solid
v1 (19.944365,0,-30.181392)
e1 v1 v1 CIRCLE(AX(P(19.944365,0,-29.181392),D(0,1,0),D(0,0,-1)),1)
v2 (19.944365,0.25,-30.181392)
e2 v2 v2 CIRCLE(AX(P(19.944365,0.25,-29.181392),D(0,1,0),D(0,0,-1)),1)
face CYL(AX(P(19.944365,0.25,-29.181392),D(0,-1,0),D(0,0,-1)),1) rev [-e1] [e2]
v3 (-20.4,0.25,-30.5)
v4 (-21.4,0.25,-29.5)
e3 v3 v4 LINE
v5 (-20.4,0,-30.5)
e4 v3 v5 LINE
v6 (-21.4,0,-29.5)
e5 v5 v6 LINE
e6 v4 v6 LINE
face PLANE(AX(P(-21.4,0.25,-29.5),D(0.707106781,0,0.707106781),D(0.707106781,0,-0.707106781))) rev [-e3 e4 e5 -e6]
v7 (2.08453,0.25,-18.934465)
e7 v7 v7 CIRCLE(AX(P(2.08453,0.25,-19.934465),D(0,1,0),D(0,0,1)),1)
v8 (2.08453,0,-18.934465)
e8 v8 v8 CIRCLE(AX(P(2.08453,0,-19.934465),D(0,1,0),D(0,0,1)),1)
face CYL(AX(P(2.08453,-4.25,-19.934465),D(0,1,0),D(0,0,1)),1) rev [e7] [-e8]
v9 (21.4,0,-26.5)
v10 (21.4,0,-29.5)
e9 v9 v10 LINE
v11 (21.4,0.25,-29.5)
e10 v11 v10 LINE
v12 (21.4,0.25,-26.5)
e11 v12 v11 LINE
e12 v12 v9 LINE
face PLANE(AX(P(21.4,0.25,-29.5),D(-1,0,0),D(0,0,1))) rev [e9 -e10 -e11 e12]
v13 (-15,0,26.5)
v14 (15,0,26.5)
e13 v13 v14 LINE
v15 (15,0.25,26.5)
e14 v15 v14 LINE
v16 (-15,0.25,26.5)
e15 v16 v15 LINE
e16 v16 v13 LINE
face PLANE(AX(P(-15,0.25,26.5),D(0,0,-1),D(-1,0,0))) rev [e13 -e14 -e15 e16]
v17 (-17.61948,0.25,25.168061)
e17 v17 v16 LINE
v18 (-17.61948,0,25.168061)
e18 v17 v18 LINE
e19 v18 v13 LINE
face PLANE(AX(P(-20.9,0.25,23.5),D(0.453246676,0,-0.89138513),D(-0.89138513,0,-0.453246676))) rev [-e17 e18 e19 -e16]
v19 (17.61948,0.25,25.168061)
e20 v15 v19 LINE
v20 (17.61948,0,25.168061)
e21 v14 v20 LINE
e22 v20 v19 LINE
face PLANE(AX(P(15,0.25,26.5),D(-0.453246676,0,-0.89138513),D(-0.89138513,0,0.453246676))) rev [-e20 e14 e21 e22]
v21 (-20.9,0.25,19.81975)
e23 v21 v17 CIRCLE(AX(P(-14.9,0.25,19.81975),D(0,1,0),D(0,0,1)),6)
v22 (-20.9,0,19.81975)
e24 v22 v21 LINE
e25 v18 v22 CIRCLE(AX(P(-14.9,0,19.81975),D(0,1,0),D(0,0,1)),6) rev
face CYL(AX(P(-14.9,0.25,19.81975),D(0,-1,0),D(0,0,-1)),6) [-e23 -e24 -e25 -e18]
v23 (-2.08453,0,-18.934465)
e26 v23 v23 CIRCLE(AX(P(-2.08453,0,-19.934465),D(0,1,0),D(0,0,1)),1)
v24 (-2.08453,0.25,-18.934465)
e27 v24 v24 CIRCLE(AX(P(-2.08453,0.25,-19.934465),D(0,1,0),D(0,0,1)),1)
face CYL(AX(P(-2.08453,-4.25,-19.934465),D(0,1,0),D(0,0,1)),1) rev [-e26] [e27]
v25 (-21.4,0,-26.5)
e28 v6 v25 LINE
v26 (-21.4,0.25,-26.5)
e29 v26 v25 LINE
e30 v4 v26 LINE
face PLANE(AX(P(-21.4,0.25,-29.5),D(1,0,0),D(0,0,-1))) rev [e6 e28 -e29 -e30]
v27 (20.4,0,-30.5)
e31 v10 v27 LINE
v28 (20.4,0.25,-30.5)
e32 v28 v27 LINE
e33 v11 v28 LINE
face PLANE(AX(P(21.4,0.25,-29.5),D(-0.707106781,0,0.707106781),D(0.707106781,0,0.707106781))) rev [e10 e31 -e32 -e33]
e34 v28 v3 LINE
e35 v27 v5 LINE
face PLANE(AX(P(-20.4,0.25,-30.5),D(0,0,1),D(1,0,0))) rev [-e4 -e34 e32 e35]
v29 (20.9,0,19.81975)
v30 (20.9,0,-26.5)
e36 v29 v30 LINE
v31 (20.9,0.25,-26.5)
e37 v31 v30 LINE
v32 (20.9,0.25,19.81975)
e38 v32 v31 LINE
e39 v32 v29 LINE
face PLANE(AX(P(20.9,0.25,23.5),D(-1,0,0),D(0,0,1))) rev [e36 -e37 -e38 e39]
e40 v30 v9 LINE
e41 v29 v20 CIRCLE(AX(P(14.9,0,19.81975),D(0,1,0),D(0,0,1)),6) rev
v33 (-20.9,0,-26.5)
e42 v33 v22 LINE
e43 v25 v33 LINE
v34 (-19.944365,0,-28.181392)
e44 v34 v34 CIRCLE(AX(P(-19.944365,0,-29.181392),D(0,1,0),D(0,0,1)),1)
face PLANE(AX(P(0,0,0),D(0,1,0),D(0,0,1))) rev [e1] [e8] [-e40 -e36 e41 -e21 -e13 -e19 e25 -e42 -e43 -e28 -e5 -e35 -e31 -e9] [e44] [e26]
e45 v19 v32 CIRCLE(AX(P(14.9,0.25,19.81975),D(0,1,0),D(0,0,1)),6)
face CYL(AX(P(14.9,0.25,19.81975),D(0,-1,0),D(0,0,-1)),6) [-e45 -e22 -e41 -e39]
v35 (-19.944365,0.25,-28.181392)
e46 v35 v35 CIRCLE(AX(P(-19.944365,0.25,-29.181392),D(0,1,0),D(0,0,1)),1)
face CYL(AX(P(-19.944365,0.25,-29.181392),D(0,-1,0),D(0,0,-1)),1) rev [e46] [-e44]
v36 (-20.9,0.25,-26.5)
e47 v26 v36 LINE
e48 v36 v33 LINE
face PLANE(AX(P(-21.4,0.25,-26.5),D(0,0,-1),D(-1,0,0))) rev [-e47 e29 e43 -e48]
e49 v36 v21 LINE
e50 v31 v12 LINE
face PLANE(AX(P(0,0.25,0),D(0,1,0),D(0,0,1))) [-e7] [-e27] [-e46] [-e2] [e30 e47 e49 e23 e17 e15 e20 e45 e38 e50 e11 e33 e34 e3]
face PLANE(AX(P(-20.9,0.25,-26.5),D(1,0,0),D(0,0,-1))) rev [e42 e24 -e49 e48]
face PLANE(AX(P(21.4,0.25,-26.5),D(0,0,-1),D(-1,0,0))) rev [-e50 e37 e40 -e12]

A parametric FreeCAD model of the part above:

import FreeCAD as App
import Part
import Sketcher


def edges_at(feature, points):
    """Names of the edges that pass closest to the given points."""
    edges = feature.Shape.Edges
    near = lambda p: min(range(len(edges)), key=lambda i: edges[i].distToShape(Part.Vertex(*p))[0])
    return sorted({f"Edge{near(p) + 1}" for p in points})

doc = App.newDocument("Part")
params = doc.addObject("Spreadsheet::Sheet", "Params")
for row, (alias, value) in enumerate([
    ("sketch1_diameter", "2 mm"),
    ("sketch1_width", "30 mm"),
    ("sketch1_height", "50 mm"),
    ("sketch1_height2", "3 mm"),
    ("sketch1_width2", "0.5 mm"),
    ("pad1_length", "0.25 mm"),
    ("sketch2_diameter", "2 mm"),
    ("pocket1_length", "4.5 mm"),
    ("fillet_radius", "6 mm"),
], start=1):
    params.set(f"A{row}", alias)
    params.set(f"B{row}", "=" + value)
    params.setAlias(f"B{row}", alias)

body = doc.addObject("PartDesign::Body", "Body")

# Sketch on XZ plane
sketch1 = body.newObject("Sketcher::SketchObject", "Sketch")
sketch1.AttachmentSupport = (doc.getObject("XZ_Plane"), [""])
sketch1.MapMode = "FlatFace"
sketch1.addGeometry(Part.LineSegment(App.Vector(-21.4, -26.5, 0), App.Vector(-20.9, -26.5, 0)), False)
sketch1.addGeometry(Part.LineSegment(App.Vector(-20.9, -26.5, 0), App.Vector(-20.9, 23.5, 0)), False)
sketch1.addGeometry(Part.LineSegment(App.Vector(-20.9, 23.5, 0), App.Vector(-15, 26.5, 0)), False)
sketch1.addGeometry(Part.LineSegment(App.Vector(-15, 26.5, 0), App.Vector(15, 26.5, 0)), False)
sketch1.addGeometry(Part.LineSegment(App.Vector(15, 26.5, 0), App.Vector(20.9, 23.5, 0)), False)
sketch1.addGeometry(Part.LineSegment(App.Vector(20.9, 23.5, 0), App.Vector(20.9, -26.5, 0)), False)
sketch1.addGeometry(Part.LineSegment(App.Vector(20.9, -26.5, 0), App.Vector(21.4, -26.5, 0)), False)
sketch1.addGeometry(Part.LineSegment(App.Vector(21.4, -26.5, 0), App.Vector(21.4, -29.5, 0)), False)
sketch1.addGeometry(Part.LineSegment(App.Vector(21.4, -29.5, 0), App.Vector(20.4, -30.5, 0)), False)
sketch1.addGeometry(Part.LineSegment(App.Vector(20.4, -30.5, 0), App.Vector(-20.4, -30.5, 0)), False)
sketch1.addGeometry(Part.LineSegment(App.Vector(-20.4, -30.5, 0), App.Vector(-21.4, -29.5, 0)), False)
sketch1.addGeometry(Part.LineSegment(App.Vector(-21.4, -29.5, 0), App.Vector(-21.4, -26.5, 0)), False)
sketch1.addGeometry(Part.Circle(App.Vector(-19.9, -29.2, 0), App.Vector(0, 0, 1), 1), False)
sketch1.addGeometry(Part.Circle(App.Vector(19.9, -29.2, 0), App.Vector(0, 0, 1), 1), False)
sketch1.addConstraint(Sketcher.Constraint("Coincident", 0, 2, 1, 1))
sketch1.addConstraint(Sketcher.Constraint("Coincident", 1, 2, 2, 1))
sketch1.addConstraint(Sketcher.Constraint("Coincident", 2, 2, 3, 1))
sketch1.addConstraint(Sketcher.Constraint("Coincident", 3, 2, 4, 1))
sketch1.addConstraint(Sketcher.Constraint("Coincident", 4, 2, 5, 1))
sketch1.addConstraint(Sketcher.Constraint("Coincident", 5, 2, 6, 1))
sketch1.addConstraint(Sketcher.Constraint("Coincident", 6, 2, 7, 1))
sketch1.addConstraint(Sketcher.Constraint("Coincident", 7, 2, 8, 1))
sketch1.addConstraint(Sketcher.Constraint("Coincident", 8, 2, 9, 1))
sketch1.addConstraint(Sketcher.Constraint("Coincident", 9, 2, 10, 1))
sketch1.addConstraint(Sketcher.Constraint("Coincident", 10, 2, 11, 1))
sketch1.addConstraint(Sketcher.Constraint("Coincident", 11, 2, 0, 1))
sketch1.addConstraint(Sketcher.Constraint("Horizontal", 0))
sketch1.addConstraint(Sketcher.Constraint("Vertical", 1))
sketch1.addConstraint(Sketcher.Constraint("Horizontal", 3))
sketch1.addConstraint(Sketcher.Constraint("Vertical", 5))
sketch1.addConstraint(Sketcher.Constraint("Horizontal", 6))
sketch1.addConstraint(Sketcher.Constraint("Vertical", 7))
sketch1.addConstraint(Sketcher.Constraint("Horizontal", 9))
sketch1.addConstraint(Sketcher.Constraint("Vertical", 11))
sketch1.addConstraint(Sketcher.Constraint("Equal", 12, 13))
sketch1.addConstraint(Sketcher.Constraint("Symmetric", 12, 3, 13, 3, -2))
sketch1.addConstraint(Sketcher.Constraint("Symmetric", 1, 2, 4, 2, -2))
sketch1.addConstraint(Sketcher.Constraint("Symmetric", 7, 2, 10, 2, -2))
sketch1.addConstraint(Sketcher.Constraint("Perpendicular", 8, 10))
sketch1.addConstraint(Sketcher.Constraint("Horizontal", 0, 2, 5, 2))
sketch1.addConstraint(Sketcher.Constraint("Equal", 2, 4))
sketch1.addConstraint(Sketcher.Constraint("Equal", 8, 10))
sketch1.addConstraint(Sketcher.Constraint("Diameter", 12, 2.0))
sketch1.addConstraint(Sketcher.Constraint("DistanceX", 3, 1, 3, 2, 30.0))
sketch1.addConstraint(Sketcher.Constraint("DistanceY", 1, 1, 1, 2, 50.0))
sketch1.addConstraint(Sketcher.Constraint("DistanceY", 7, 2, 7, 1, 3.0))
sketch1.addConstraint(Sketcher.Constraint("DistanceX", 0, 1, 0, 2, 0.5))
sketch1.addConstraint(Sketcher.Constraint("DistanceX", 9, 2, 9, 1, 40.8))
sketch1.addConstraint(Sketcher.Constraint("DistanceY", 1, 2, 2, 2, 3.0))
sketch1.addConstraint(Sketcher.Constraint("DistanceX", 8, 2, 7, 2, 1.0))
sketch1.addConstraint(Sketcher.Constraint("DistanceY", 0, 2, -1, 1, 26.5))
sketch1.addConstraint(Sketcher.Constraint("DistanceX", 12, 3, 13, 3, 39.88873))
sketch1.addConstraint(Sketcher.Constraint("DistanceY", 12, 3, -1, 1, 29.181392))
sketch1.setExpression("Constraints[28]", "Params.sketch1_diameter")
sketch1.setExpression("Constraints[29]", "Params.sketch1_width")
sketch1.setExpression("Constraints[30]", "Params.sketch1_height")
sketch1.setExpression("Constraints[31]", "Params.sketch1_height2")
sketch1.setExpression("Constraints[32]", "Params.sketch1_width2")
pad1 = body.newObject("PartDesign::Pad", "Pad")
pad1.Profile = sketch1
pad1.setExpression("Length", "Params.pad1_length")
pad1.Reversed = True

# Sketch on XZ plane
sketch2 = body.newObject("Sketcher::SketchObject", "Sketch001")
sketch2.AttachmentSupport = (doc.getObject("XZ_Plane"), [""])
sketch2.MapMode = "FlatFace"
sketch2.AttachmentOffset = App.Placement(App.Vector(0, 0, -0.25), App.Rotation())
sketch2.addGeometry(Part.Circle(App.Vector(-2.1, -19.9, 0), App.Vector(0, 0, 1), 1), False)
sketch2.addGeometry(Part.Circle(App.Vector(2.1, -19.9, 0), App.Vector(0, 0, 1), 1), False)
sketch2.addConstraint(Sketcher.Constraint("Equal", 0, 1))
sketch2.addConstraint(Sketcher.Constraint("Symmetric", 0, 3, 1, 3, -2))
sketch2.addConstraint(Sketcher.Constraint("Diameter", 0, 2.0))
sketch2.addConstraint(Sketcher.Constraint("DistanceX", 0, 3, -1, 1, 2.08453))
sketch2.addConstraint(Sketcher.Constraint("DistanceY", 0, 3, -1, 1, 19.934465))
sketch2.setExpression("Constraints[2]", "Params.sketch2_diameter")
pocket1 = body.newObject("PartDesign::Pocket", "Pocket")
pocket1.Profile = sketch2
pocket1.setExpression("Length", "Params.pocket1_length")
pocket1.Reversed = True
doc.recompute()

fillet = body.newObject("PartDesign::Fillet", "Fillet")
fillet.Base = (pocket1, edges_at(pocket1, [(20.9, 0.125, 23.5), (-20.9, 0.125, 23.5)]))
fillet.setExpression("Radius", "Params.fillet_radius")

doc.recompute()
